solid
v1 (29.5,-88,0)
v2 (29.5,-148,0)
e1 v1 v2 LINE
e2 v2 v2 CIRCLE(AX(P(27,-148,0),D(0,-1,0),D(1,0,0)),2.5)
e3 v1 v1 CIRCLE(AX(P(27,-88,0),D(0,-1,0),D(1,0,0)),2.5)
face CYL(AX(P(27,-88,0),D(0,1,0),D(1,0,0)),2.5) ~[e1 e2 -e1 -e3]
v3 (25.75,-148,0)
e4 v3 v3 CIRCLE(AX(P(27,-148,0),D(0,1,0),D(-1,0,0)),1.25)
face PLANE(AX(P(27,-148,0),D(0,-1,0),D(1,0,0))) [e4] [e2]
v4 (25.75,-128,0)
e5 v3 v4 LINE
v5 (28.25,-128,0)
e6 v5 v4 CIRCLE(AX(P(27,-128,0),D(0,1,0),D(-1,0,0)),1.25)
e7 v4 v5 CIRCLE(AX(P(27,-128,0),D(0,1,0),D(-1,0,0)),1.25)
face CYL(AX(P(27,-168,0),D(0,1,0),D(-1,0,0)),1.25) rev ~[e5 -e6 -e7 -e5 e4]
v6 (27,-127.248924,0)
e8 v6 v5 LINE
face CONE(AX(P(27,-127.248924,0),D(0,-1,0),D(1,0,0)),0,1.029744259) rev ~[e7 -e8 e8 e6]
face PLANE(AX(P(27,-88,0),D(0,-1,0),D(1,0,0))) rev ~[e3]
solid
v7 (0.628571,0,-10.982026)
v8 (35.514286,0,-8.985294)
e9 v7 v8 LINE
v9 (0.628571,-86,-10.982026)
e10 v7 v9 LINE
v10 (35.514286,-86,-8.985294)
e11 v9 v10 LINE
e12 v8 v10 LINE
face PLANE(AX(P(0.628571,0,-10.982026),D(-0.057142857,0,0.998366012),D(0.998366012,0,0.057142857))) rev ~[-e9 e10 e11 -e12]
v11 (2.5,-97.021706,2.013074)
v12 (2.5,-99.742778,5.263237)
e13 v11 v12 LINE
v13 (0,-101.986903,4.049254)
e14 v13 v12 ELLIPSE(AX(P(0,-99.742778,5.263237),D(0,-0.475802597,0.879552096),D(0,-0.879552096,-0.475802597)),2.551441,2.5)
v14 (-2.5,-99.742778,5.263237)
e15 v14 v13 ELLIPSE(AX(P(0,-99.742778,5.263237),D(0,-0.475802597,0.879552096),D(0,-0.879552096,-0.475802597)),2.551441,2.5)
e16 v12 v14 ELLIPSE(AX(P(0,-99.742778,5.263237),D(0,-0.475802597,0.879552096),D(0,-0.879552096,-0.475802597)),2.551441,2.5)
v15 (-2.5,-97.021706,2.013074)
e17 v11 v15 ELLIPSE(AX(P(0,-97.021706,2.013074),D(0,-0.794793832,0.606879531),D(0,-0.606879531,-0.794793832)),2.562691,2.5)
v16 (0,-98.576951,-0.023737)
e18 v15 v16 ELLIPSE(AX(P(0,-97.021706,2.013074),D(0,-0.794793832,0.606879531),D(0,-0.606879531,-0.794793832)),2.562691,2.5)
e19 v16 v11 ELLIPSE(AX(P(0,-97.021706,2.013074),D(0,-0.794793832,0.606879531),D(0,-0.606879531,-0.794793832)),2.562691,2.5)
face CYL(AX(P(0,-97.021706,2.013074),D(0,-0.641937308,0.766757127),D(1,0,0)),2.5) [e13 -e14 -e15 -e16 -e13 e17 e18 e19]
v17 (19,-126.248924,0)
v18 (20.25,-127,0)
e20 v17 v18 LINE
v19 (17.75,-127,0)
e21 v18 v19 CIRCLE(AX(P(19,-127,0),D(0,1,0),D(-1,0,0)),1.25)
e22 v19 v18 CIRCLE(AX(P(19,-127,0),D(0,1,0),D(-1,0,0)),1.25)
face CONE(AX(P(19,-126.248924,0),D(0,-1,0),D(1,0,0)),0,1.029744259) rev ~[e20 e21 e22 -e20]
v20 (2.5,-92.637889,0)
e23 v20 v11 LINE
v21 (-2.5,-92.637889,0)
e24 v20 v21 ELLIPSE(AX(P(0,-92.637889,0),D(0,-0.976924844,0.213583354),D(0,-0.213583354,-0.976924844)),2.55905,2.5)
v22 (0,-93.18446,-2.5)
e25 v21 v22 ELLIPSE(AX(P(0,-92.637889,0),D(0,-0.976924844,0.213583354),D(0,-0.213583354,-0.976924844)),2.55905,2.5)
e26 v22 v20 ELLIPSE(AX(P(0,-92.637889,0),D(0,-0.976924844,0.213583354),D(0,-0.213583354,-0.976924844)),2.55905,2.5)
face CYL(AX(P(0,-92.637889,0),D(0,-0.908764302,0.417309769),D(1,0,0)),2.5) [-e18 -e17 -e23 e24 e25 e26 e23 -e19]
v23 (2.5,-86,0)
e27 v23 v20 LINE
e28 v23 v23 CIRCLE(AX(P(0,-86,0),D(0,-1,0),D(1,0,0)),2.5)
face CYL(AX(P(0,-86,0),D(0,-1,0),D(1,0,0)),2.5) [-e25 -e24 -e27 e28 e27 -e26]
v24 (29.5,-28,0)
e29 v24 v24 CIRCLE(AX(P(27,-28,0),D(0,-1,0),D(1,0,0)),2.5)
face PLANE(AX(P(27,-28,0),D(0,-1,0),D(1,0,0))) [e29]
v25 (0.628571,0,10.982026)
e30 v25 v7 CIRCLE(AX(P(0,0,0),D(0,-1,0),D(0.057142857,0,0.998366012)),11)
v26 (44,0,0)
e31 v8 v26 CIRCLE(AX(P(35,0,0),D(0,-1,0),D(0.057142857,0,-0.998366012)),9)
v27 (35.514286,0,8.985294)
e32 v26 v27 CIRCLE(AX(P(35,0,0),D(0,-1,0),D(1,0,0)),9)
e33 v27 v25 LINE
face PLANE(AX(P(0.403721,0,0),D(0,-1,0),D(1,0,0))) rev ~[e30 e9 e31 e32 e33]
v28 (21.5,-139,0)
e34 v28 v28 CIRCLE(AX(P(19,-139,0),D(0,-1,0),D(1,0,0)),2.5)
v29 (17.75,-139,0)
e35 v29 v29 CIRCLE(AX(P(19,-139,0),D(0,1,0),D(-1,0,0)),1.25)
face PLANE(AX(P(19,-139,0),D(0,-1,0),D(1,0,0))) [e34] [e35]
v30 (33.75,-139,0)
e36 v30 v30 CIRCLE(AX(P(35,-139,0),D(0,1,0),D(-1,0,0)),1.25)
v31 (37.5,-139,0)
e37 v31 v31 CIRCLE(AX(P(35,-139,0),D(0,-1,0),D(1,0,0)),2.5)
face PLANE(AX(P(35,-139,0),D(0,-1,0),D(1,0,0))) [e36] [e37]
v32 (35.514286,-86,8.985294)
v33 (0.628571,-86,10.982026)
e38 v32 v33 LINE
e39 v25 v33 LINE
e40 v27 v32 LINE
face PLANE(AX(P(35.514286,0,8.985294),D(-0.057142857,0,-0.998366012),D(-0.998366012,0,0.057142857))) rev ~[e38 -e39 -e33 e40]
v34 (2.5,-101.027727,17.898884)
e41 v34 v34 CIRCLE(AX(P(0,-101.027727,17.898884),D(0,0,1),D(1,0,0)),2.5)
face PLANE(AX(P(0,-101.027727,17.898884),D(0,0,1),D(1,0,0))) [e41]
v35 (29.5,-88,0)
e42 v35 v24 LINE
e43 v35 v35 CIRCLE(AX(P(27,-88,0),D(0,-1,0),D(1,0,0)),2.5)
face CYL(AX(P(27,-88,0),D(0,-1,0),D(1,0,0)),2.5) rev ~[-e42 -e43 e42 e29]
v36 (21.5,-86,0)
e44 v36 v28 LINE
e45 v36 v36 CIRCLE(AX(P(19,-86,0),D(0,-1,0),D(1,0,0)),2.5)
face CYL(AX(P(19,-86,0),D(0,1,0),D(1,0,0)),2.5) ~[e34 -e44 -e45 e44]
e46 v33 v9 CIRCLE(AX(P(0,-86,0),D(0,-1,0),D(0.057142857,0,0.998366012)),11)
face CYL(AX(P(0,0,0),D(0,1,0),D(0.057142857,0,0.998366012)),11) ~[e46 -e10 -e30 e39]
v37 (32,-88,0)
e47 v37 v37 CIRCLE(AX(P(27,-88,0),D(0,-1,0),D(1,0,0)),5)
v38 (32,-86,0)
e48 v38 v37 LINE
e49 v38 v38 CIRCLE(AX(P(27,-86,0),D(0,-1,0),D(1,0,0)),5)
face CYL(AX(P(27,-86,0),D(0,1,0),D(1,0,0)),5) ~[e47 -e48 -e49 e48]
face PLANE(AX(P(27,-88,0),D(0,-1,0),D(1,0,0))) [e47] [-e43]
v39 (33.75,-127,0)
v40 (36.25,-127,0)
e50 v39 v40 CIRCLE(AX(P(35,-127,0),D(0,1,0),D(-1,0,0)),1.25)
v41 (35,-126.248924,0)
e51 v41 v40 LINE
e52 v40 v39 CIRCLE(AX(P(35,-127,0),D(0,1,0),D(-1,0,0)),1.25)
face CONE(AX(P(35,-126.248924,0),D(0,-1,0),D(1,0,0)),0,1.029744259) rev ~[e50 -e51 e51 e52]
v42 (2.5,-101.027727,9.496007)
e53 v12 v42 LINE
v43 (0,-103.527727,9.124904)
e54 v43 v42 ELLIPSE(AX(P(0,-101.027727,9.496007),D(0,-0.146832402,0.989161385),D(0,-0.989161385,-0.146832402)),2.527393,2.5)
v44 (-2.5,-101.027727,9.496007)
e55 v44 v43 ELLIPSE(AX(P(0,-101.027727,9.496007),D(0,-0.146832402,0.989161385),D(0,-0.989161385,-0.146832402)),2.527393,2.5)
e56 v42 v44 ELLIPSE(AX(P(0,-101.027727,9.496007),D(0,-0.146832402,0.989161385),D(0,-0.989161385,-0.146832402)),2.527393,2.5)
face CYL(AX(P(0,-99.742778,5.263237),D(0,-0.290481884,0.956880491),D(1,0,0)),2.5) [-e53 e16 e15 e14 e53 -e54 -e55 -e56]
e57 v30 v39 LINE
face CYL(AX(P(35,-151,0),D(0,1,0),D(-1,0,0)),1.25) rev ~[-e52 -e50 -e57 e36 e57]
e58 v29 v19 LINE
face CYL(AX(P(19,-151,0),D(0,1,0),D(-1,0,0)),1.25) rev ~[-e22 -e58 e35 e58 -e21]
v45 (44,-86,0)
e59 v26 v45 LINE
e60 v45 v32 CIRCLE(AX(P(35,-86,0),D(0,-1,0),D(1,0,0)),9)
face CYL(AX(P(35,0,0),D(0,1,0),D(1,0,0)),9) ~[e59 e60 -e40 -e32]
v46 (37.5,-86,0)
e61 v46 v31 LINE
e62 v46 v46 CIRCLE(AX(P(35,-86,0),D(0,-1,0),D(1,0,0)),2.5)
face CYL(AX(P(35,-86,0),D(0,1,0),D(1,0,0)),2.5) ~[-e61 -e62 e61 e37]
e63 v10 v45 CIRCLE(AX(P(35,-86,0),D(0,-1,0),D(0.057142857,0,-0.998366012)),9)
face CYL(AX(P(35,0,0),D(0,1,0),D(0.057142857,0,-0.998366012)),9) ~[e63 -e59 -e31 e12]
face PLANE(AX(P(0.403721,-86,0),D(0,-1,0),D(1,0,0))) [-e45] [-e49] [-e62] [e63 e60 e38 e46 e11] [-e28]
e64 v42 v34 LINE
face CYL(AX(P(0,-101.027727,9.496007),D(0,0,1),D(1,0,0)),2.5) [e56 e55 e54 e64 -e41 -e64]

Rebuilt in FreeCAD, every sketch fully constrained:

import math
import FreeCAD as App
import Part
import Sketcher

V = App.Vector
Q = App.Units.Quantity

doc = App.newDocument("Part")
params = doc.addObject("Spreadsheet::Sheet", "Params")
for row, (alias, value) in enumerate([
    ("sketch1_radius", "11 mm"),
    ("sketch1_radius2", "9 mm"),
    ("pad1_length", "86 mm"),
    ("sketch2_diameter", "10 mm"),
    ("pad2_length", "2 mm"),
    ("sketch3_diameter", "5 mm"),
    ("pad3_length", "53 mm"),
    ("sketch4_diameter", "5 mm"),
    ("pocket1_length", "60 mm"),
    ("sketch5_diameter", "2.5 mm"),
    ("hole_diameter", "2.5 mm"),
    ("hole_depth", "12 mm"),
    ("sketch6_diameter", "5 mm"),
    ("sketch8_diameter", "5 mm"),
    ("pad4_length", "60 mm"),
    ("sketch9_diameter", "2.5 mm"),
    ("hole2_diameter", "2.5 mm"),
    ("hole2_depth", "20 mm"),
], start=1):
    params.set(f"A{row}", alias)
    params.set(f"B{row}", "=" + value)
    params.setAlias(f"B{row}", alias)

body = doc.addObject("PartDesign::Body", "Body")

# Sketch on XZ plane
sketch1 = doc.addObject("Sketcher::SketchObject", "Sketch")
body.addObject(sketch1)
sketch1.AttachmentSupport = (doc.XZ_Plane, [""])
sketch1.MapMode = "FlatFace"
sketch1.addGeometry(Part.ArcOfCircle(Part.Circle(V(0, 0, 0), V(0, 0, 1), 11), math.radians(87), math.radians(273)), False)
sketch1.addGeometry(Part.LineSegment(V(1, -11, 0), V(36, -9, 0)), False)
sketch1.addGeometry(Part.ArcOfCircle(Part.Circle(V(35, 0, 0), V(0, 0, 1), 9), math.radians(-87), math.radians(0)), False)
sketch1.addGeometry(Part.ArcOfCircle(Part.Circle(V(35, 0, 0), V(0, 0, 1), 9), math.radians(0), math.radians(87)), False)
sketch1.addGeometry(Part.LineSegment(V(36, 9, 0), V(1, 11, 0)), False)
sketch1.addConstraint(Sketcher.Constraint("Tangent", 0, 2, 1, 1))
sketch1.addConstraint(Sketcher.Constraint("Tangent", 1, 2, 2, 1))
sketch1.addConstraint(Sketcher.Constraint("Tangent", 2, 2, 3, 1))
sketch1.addConstraint(Sketcher.Constraint("Tangent", 3, 2, 4, 1))
sketch1.addConstraint(Sketcher.Constraint("Tangent", 4, 2, 0, 1))
sketch1.addConstraint(Sketcher.Constraint("Coincident", 0, 3, -1, 1))
sketch1.addConstraint(Sketcher.Constraint("Equal", 2, 3))
sketch1.addConstraint(Sketcher.Constraint("PointOnObject", 2, 3, -1))
sketch1.addConstraint(Sketcher.Constraint("PointOnObject", 2, 2, -1))
sketch1.addConstraint(Sketcher.Constraint("Radius", 0, Q("11 mm")))
sketch1.addConstraint(Sketcher.Constraint("Radius", 2, Q("9 mm")))
sketch1.addConstraint(Sketcher.Constraint("DistanceX", -1, 1, 2, 3, Q("35 mm")))
sketch1.setExpression("Constraints[9]", "Params.sketch1_radius")
sketch1.setExpression("Constraints[10]", "Params.sketch1_radius2")
pad1 = doc.addObject("PartDesign::Pad", "Pad")
body.addObject(pad1)
pad1.Profile = sketch1
pad1.setExpression("Length", "Params.pad1_length")

# Sketch on XZ plane
sketch2 = doc.addObject("Sketcher::SketchObject", "Sketch001")
body.addObject(sketch2)
sketch2.AttachmentSupport = (doc.XZ_Plane, [""])
sketch2.MapMode = "FlatFace"
sketch2.AttachmentOffset = App.Placement(V(0, 0, 86), App.Rotation())
sketch2.addGeometry(Part.Circle(V(27, 0, 0), V(0, 0, 1), 5), False)
sketch2.addConstraint(Sketcher.Constraint("PointOnObject", 0, 3, -1))
sketch2.addConstraint(Sketcher.Constraint("Diameter", 0, Q("10 mm")))
sketch2.addConstraint(Sketcher.Constraint("DistanceX", -1, 1, 0, 3, Q("27 mm")))
sketch2.setExpression("Constraints[1]", "Params.sketch2_diameter")
pad2 = doc.addObject("PartDesign::Pad", "Pad001")
body.addObject(pad2)
pad2.Profile = sketch2
pad2.setExpression("Length", "Params.pad2_length")

# Sketch on XZ plane
sketch3 = doc.addObject("Sketcher::SketchObject", "Sketch002")
body.addObject(sketch3)
sketch3.AttachmentSupport = (doc.XZ_Plane, [""])
sketch3.MapMode = "FlatFace"
sketch3.AttachmentOffset = App.Placement(V(0, 0, 86), App.Rotation())
sketch3.addGeometry(Part.Circle(V(19, 0, 0), V(0, 0, 1), 2.5), False)
sketch3.addGeometry(Part.Circle(V(35, 0, 0), V(0, 0, 1), 2.5), False)
sketch3.addConstraint(Sketcher.Constraint("Equal", 0, 1))
sketch3.addConstraint(Sketcher.Constraint("PointOnObject", 0, 3, -1))
sketch3.addConstraint(Sketcher.Constraint("PointOnObject", 1, 3, -1))
sketch3.addConstraint(Sketcher.Constraint("Diameter", 0, Q("5 mm")))
sketch3.addConstraint(Sketcher.Constraint("DistanceX", -1, 1, 0, 3, Q("19 mm")))
sketch3.addConstraint(Sketcher.Constraint("DistanceX", -1, 1, 1, 3, Q("35 mm")))
sketch3.setExpression("Constraints[3]", "Params.sketch3_diameter")
pad3 = doc.addObject("PartDesign::Pad", "Pad002")
body.addObject(pad3)
pad3.Profile = sketch3
pad3.setExpression("Length", "Params.pad3_length")

# Sketch on XZ plane
sketch4 = doc.addObject("Sketcher::SketchObject", "Sketch003")
body.addObject(sketch4)
sketch4.AttachmentSupport = (doc.XZ_Plane, [""])
sketch4.MapMode = "FlatFace"
sketch4.AttachmentOffset = App.Placement(V(0, 0, 88), App.Rotation())
sketch4.addGeometry(Part.Circle(V(27, 0, 0), V(0, 0, 1), 2.5), False)
sketch4.addConstraint(Sketcher.Constraint("PointOnObject", 0, 3, -1))
sketch4.addConstraint(Sketcher.Constraint("Diameter", 0, Q("5 mm")))
sketch4.addConstraint(Sketcher.Constraint("DistanceX", -1, 1, 0, 3, Q("27 mm")))
sketch4.setExpression("Constraints[1]", "Params.sketch4_diameter")
pocket1 = doc.addObject("PartDesign::Pocket", "Pocket")
body.addObject(pocket1)
pocket1.Profile = sketch4
pocket1.setExpression("Length", "Params.pocket1_length")

# Sketch on XZ plane
sketch5 = doc.addObject("Sketcher::SketchObject", "Sketch004")
body.addObject(sketch5)
sketch5.AttachmentSupport = (doc.XZ_Plane, [""])
sketch5.MapMode = "FlatFace"
sketch5.AttachmentOffset = App.Placement(V(0, 0, 139), App.Rotation())
sketch5.addGeometry(Part.Circle(V(19, 0, 0), V(0, 0, 1), 1.2), False)
sketch5.addGeometry(Part.Circle(V(35, 0, 0), V(0, 0, 1), 1.2), False)
sketch5.addConstraint(Sketcher.Constraint("Equal", 0, 1))
sketch5.addConstraint(Sketcher.Constraint("PointOnObject", 0, 3, -1))
sketch5.addConstraint(Sketcher.Constraint("PointOnObject", 1, 3, -1))
sketch5.addConstraint(Sketcher.Constraint("Diameter", 0, Q("2.5 mm")))
sketch5.addConstraint(Sketcher.Constraint("DistanceX", -1, 1, 0, 3, Q("19 mm")))
sketch5.addConstraint(Sketcher.Constraint("DistanceX", -1, 1, 1, 3, Q("35 mm")))
sketch5.setExpression("Constraints[3]", "Params.sketch5_diameter")
doc.recompute()
hole = doc.addObject("PartDesign::Hole", "Hole")
body.addObject(hole)
hole.Profile = sketch5
hole.ThreadType = "None"
hole.setExpression("Diameter", "Params.hole_diameter")
hole.DepthType = "Dimension"
hole.setExpression("Depth", "Params.hole_depth")
hole.DrillPoint = "Angled"
hole.DrillPointAngle = 118

# Sketch on XZ plane
sketch6 = doc.addObject("Sketcher::SketchObject", "Sketch005")
body.addObject(sketch6)
sketch6.AttachmentSupport = (doc.XZ_Plane, [""])
sketch6.MapMode = "FlatFace"
sketch6.AttachmentOffset = App.Placement(V(0, 0, 86), App.Rotation())
sketch6.addGeometry(Part.Circle(V(0, 0, 0), V(0, 0, 1), 2.5), False)
sketch6.addConstraint(Sketcher.Constraint("Coincident", 0, 3, -1, 1))
sketch6.addConstraint(Sketcher.Constraint("Diameter", 0, Q("5 mm")))
sketch6.setExpression("Constraints[1]", "Params.sketch6_diameter")

# Sketch on YZ plane
sketch7 = doc.addObject("Sketcher::SketchObject", "Sketch006")
body.addObject(sketch7)
sketch7.AttachmentSupport = (doc.YZ_Plane, [""])
sketch7.MapMode = "FlatFace"
sketch7.addGeometry(Part.LineSegment(V(-86, 0, 0), V(-92.6, 0, 0)), False)
sketch7.addGeometry(Part.LineSegment(V(-92.6, 0, 0), V(-97, 2, 0)), False)
sketch7.addGeometry(Part.LineSegment(V(-97, 2, 0), V(-99.7, 5.3, 0)), False)
sketch7.addGeometry(Part.LineSegment(V(-99.7, 5.3, 0), V(-101, 9.5, 0)), False)
sketch7.addGeometry(Part.LineSegment(V(-101, 9.5, 0), V(-101, 17.9, 0)), False)
sketch7.addConstraint(Sketcher.Constraint("Coincident", 0, 2, 1, 1))
sketch7.addConstraint(Sketcher.Constraint("Coincident", 1, 2, 2, 1))
sketch7.addConstraint(Sketcher.Constraint("Coincident", 2, 2, 3, 1))
sketch7.addConstraint(Sketcher.Constraint("Coincident", 3, 2, 4, 1))
sketch7.addConstraint(Sketcher.Constraint("Horizontal", 0))
sketch7.addConstraint(Sketcher.Constraint("Vertical", 4))
sketch7.addConstraint(Sketcher.Constraint("PointOnObject", 0, 1, -1))
sketch7.addConstraint(Sketcher.Constraint("DistanceX", 0, 1, -1, 1, Q("86 mm")))
sketch7.addConstraint(Sketcher.Constraint("DistanceX", 0, 2, 0, 1, Q("6.637889 mm")))
sketch7.addConstraint(Sketcher.Constraint("Distance", 3, Q("4.42351 mm")))
sketch7.addConstraint(Sketcher.Constraint("DistanceY", 4, 1, 4, 2, Q("8.402877 mm")))
sketch7.addConstraint(Sketcher.Constraint("DistanceX", 2, 2, 1, 2, Q("2.721071 mm")))
sketch7.addConstraint(Sketcher.Constraint("DistanceX", 2, 2, 0, 2, Q("7.104889 mm")))
sketch7.addConstraint(Sketcher.Constraint("DistanceX", 3, 2, 2, 2, Q("1.284949 mm")))
sketch7.addConstraint(Sketcher.Constraint("DistanceY", 1, 2, 4, 2, Q("15.88581 mm")))
sketch7.addConstraint(Sketcher.Constraint("Distance", 1, Q("4.823932 mm")))
doc.recompute()

additivepipe = doc.addObject("PartDesign::AdditivePipe", "AdditivePipe")
body.addObject(additivepipe)
additivepipe.Profile = sketch6
additivepipe.Spine = (sketch7, ["Edge1", "Edge2", "Edge3", "Edge4", "Edge5"])
additivepipe.Transition = "Right corner"
body2 = doc.addObject("PartDesign::Body", "Body001")

# Sketch on XZ plane
sketch8 = doc.addObject("Sketcher::SketchObject", "Sketch007")
body2.addObject(sketch8)
sketch8.AttachmentSupport = (doc.getObject("XZ_Plane001"), [""])
sketch8.MapMode = "FlatFace"
sketch8.AttachmentOffset = App.Placement(V(0, 0, 88), App.Rotation())
sketch8.addGeometry(Part.Circle(V(27, 0, 0), V(0, 0, 1), 2.5), False)
sketch8.addConstraint(Sketcher.Constraint("PointOnObject", 0, 3, -1))
sketch8.addConstraint(Sketcher.Constraint("Diameter", 0, Q("5 mm")))
sketch8.addConstraint(Sketcher.Constraint("DistanceX", -1, 1, 0, 3, Q("27 mm")))
sketch8.setExpression("Constraints[1]", "Params.sketch8_diameter")
pad4 = doc.addObject("PartDesign::Pad", "Pad003")
body2.addObject(pad4)
pad4.Profile = sketch8
pad4.setExpression("Length", "Params.pad4_length")

# Sketch on XZ plane
sketch9 = doc.addObject("Sketcher::SketchObject", "Sketch008")
body2.addObject(sketch9)
sketch9.AttachmentSupport = (doc.getObject("XZ_Plane001"), [""])
sketch9.MapMode = "FlatFace"
sketch9.AttachmentOffset = App.Placement(V(0, 0, 148), App.Rotation())
sketch9.addGeometry(Part.Circle(V(27, 0, 0), V(0, 0, 1), 1.2), False)
sketch9.addConstraint(Sketcher.Constraint("PointOnObject", 0, 3, -1))
sketch9.addConstraint(Sketcher.Constraint("Diameter", 0, Q("2.5 mm")))
sketch9.addConstraint(Sketcher.Constraint("DistanceX", -1, 1, 0, 3, Q("27 mm")))
sketch9.setExpression("Constraints[1]", "Params.sketch9_diameter")
doc.recompute()
hole2 = doc.addObject("PartDesign::Hole", "Hole001")
body2.addObject(hole2)
hole2.Profile = sketch9
hole2.ThreadType = "None"
hole2.setExpression("Diameter", "Params.hole2_diameter")
hole2.DepthType = "Dimension"
hole2.setExpression("Depth", "Params.hole2_depth")
hole2.DrillPoint = "Angled"
hole2.DrillPointAngle = 118

doc.recompute()
